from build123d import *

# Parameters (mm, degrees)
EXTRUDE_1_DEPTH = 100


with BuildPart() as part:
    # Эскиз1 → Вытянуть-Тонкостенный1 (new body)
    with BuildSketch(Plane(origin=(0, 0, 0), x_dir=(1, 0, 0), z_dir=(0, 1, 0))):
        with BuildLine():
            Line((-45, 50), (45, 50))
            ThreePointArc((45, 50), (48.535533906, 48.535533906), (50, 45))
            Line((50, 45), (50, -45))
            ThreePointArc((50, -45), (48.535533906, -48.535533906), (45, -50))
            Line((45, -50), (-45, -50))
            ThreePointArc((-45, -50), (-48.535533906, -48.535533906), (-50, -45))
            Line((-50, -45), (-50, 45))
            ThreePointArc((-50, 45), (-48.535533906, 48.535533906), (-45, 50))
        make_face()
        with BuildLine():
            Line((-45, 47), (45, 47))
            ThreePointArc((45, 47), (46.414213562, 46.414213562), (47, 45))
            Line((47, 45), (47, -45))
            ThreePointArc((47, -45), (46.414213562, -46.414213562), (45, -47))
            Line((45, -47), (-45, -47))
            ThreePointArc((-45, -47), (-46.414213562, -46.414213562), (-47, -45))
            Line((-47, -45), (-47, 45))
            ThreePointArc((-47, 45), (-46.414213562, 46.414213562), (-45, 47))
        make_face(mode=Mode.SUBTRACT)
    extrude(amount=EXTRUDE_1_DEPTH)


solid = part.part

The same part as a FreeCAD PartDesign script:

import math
import FreeCAD as App
import Part
import Sketcher

doc = App.newDocument("Part")
body = doc.addObject("PartDesign::Body", "Body")

# Sketch on XZ plane
sketch1 = body.newObject("Sketcher::SketchObject", "Sketch")
sketch1.AttachmentSupport = (doc.getObject("XZ_Plane"), [""])
sketch1.MapMode = "FlatFace"
sketch1.addGeometry([
    Part.LineSegment(App.Vector(45, -50, 0), App.Vector(-45, -50, 0)),  # 0
    Part.ArcOfCircle(Part.Circle(App.Vector(-45, -45, 0), App.Vector(0, 0, 1), 5), math.radians(180), math.radians(270)),  # 1
    Part.LineSegment(App.Vector(-50, -45, 0), App.Vector(-50, 45, 0)),  # 2
    Part.ArcOfCircle(Part.Circle(App.Vector(-45, 45, 0), App.Vector(0, 0, 1), 5), math.radians(90), math.radians(180)),  # 3
    Part.LineSegment(App.Vector(-45, 50, 0), App.Vector(45, 50, 0)),  # 4
    Part.ArcOfCircle(Part.Circle(App.Vector(45, 45, 0), App.Vector(0, 0, 1), 5), math.radians(0), math.radians(90)),  # 5
    Part.LineSegment(App.Vector(50, 45, 0), App.Vector(50, -45, 0)),  # 6
    Part.ArcOfCircle(Part.Circle(App.Vector(45, -45, 0), App.Vector(0, 0, 1), 5), math.radians(-90), math.radians(0)),  # 7
    Part.LineSegment(App.Vector(-45, -47, 0), App.Vector(45, -47, 0)),  # 8
    Part.ArcOfCircle(Part.Circle(App.Vector(45, -45, 0), App.Vector(0, 0, 1), 2), math.radians(-90), math.radians(0)),  # 9
    Part.LineSegment(App.Vector(47, -45, 0), App.Vector(47, 45, 0)),  # 10
    Part.ArcOfCircle(Part.Circle(App.Vector(45, 45, 0), App.Vector(0, 0, 1), 2), math.radians(0), math.radians(90)),  # 11
    Part.LineSegment(App.Vector(45, 47, 0), App.Vector(-45, 47, 0)),  # 12
    Part.ArcOfCircle(Part.Circle(App.Vector(-45, 45, 0), App.Vector(0, 0, 1), 2), math.radians(90), math.radians(180)),  # 13
    Part.LineSegment(App.Vector(-47, 45, 0), App.Vector(-47, -45, 0)),  # 14
    Part.ArcOfCircle(Part.Circle(App.Vector(-45, -45, 0), App.Vector(0, 0, 1), 2), math.radians(-180), math.radians(-90)),  # 15
], False)
sketch1.addConstraint([
    Sketcher.Constraint("Tangent", 0, 2, 1, 2),
    Sketcher.Constraint("Tangent", 1, 1, 2, 1),
    Sketcher.Constraint("Tangent", 2, 2, 3, 2),
    Sketcher.Constraint("Tangent", 3, 1, 4, 1),
    Sketcher.Constraint("Tangent", 4, 2, 5, 2),
    Sketcher.Constraint("Tangent", 5, 1, 6, 1),
    Sketcher.Constraint("Tangent", 6, 2, 7, 2),
    Sketcher.Constraint("Tangent", 7, 1, 0, 1),
    Sketcher.Constraint("Tangent", 8, 2, 9, 1),
    Sketcher.Constraint("Tangent", 9, 2, 10, 1),
    Sketcher.Constraint("Tangent", 10, 2, 11, 1),
    Sketcher.Constraint("Tangent", 11, 2, 12, 1),
    Sketcher.Constraint("Tangent", 12, 2, 13, 1),
    Sketcher.Constraint("Tangent", 13, 2, 14, 1),
    Sketcher.Constraint("Tangent", 14, 2, 15, 1),
    Sketcher.Constraint("Tangent", 15, 2, 8, 1),
    Sketcher.Constraint("Horizontal", 0),
    Sketcher.Constraint("Vertical", 2),
    Sketcher.Constraint("Horizontal", 4),
    Sketcher.Constraint("Vertical", 6),
    Sketcher.Constraint("Horizontal", 8),
    Sketcher.Constraint("Vertical", 10),
    Sketcher.Constraint("Horizontal", 12),
    Sketcher.Constraint("Vertical", 14),
    Sketcher.Constraint("Coincident", 9, 3, 7, 3),
    Sketcher.Constraint("Coincident", 11, 3, 5, 3),
    Sketcher.Constraint("Coincident", 13, 3, 3, 3),
    Sketcher.Constraint("Equal", 1, 3),
    Sketcher.Constraint("Equal", 3, 5),
    Sketcher.Constraint("Equal", 5, 7),
    Sketcher.Constraint("Equal", 13, 15),
    Sketcher.Constraint("Symmetric", 1, 3, 5, 3, -1, 1),
    Sketcher.Constraint("Equal", 12, 2),
    Sketcher.Constraint("Radius", 1, 5.0),
    Sketcher.Constraint("Radius", 9, 2.0),
    Sketcher.Constraint("DistanceX", 0, 2, 0, 1, 90.0),
])
pad1 = body.newObject("PartDesign::Pad", "Pad")
pad1.Profile = sketch1
pad1.Length = 100
pad1.Reversed = True

doc.recompute()
